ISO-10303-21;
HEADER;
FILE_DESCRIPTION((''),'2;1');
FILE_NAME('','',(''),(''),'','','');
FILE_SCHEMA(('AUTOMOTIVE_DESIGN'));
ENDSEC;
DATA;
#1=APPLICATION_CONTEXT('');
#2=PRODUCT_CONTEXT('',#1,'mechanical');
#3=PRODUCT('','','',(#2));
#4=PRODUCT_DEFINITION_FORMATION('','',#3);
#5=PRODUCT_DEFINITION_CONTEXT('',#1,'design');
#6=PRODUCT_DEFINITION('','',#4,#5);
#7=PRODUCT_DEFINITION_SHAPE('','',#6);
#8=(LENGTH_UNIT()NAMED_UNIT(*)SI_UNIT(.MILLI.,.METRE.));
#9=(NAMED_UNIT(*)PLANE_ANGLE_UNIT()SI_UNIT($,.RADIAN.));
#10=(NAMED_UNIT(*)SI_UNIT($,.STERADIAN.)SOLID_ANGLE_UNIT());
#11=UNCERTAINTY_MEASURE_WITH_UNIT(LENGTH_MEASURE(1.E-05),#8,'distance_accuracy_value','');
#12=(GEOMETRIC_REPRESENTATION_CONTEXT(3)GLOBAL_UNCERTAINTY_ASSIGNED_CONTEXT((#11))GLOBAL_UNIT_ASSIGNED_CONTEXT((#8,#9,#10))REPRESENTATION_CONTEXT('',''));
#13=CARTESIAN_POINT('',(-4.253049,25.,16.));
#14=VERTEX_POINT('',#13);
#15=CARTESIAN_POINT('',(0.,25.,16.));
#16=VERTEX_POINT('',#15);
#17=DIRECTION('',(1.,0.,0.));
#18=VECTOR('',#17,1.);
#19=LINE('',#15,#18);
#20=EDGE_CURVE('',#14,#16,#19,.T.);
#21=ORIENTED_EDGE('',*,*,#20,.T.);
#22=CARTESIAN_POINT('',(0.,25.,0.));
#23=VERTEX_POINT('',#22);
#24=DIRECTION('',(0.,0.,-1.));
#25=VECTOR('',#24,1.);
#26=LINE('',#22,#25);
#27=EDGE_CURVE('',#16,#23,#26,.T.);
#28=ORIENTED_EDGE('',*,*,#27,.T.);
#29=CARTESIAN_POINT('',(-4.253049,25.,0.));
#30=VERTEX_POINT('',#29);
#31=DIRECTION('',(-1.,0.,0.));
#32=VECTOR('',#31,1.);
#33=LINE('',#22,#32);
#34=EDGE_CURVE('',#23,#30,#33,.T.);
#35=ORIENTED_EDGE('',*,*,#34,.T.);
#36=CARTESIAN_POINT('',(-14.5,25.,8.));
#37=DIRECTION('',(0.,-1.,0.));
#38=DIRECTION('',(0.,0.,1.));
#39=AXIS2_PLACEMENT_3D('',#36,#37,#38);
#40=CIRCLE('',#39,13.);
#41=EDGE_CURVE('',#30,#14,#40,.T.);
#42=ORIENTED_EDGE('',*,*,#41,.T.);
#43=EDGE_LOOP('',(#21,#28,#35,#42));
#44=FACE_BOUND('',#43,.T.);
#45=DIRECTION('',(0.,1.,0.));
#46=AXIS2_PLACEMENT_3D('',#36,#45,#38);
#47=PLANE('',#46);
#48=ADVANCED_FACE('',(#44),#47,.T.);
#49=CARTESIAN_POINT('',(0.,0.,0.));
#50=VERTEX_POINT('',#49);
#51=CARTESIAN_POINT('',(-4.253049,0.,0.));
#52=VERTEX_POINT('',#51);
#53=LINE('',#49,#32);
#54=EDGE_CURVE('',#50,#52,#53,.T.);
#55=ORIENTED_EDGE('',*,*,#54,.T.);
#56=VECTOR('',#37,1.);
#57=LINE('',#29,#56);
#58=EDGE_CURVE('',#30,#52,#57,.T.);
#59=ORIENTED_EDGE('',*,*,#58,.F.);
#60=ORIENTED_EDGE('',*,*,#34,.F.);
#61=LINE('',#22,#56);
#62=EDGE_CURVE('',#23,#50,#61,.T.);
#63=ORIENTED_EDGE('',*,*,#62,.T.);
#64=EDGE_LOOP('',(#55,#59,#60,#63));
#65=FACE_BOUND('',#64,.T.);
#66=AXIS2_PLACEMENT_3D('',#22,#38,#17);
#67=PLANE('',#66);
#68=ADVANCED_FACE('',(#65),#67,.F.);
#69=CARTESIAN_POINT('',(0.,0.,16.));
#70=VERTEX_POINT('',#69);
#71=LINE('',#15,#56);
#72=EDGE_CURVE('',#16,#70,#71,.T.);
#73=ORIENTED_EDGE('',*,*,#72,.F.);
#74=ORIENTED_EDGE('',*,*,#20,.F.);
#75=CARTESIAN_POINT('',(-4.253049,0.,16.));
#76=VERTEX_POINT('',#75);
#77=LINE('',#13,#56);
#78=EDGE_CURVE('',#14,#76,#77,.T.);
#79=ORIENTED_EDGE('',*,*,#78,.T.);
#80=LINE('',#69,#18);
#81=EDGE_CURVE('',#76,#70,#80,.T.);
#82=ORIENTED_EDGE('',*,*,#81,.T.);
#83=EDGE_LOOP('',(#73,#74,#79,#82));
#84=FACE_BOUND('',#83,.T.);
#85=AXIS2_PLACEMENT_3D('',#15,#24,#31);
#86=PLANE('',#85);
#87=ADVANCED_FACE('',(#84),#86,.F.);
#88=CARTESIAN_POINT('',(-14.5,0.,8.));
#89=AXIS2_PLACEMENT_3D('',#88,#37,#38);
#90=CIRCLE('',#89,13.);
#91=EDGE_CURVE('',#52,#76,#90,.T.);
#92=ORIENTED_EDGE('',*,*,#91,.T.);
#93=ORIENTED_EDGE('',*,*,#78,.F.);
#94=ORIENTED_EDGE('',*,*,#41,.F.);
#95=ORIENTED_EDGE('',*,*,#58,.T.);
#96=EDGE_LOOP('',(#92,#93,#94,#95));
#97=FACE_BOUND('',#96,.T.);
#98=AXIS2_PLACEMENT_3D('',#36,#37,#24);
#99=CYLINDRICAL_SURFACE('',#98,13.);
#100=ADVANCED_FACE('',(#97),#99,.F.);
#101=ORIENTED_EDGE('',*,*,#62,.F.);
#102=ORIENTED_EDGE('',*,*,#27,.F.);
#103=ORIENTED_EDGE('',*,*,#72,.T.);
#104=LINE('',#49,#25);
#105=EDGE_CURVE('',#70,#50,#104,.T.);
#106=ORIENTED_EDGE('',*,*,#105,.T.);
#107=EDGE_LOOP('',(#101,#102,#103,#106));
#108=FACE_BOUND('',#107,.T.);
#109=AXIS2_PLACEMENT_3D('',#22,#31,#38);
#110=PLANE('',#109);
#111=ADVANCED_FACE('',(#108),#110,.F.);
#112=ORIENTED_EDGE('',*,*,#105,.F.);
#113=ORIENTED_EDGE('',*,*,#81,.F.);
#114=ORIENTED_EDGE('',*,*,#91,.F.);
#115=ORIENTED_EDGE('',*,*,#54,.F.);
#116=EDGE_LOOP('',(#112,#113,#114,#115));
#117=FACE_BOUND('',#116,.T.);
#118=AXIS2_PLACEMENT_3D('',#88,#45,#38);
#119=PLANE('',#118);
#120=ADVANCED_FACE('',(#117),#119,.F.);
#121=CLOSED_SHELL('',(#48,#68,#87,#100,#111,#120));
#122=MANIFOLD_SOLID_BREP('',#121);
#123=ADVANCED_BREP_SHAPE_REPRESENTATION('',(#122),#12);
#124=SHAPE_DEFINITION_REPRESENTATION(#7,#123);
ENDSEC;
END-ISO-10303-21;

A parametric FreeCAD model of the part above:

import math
import FreeCAD as App
import Part
import Sketcher
from FreeCAD import Vector
Q = App.Units.Quantity

doc = App.newDocument("Part")
body = doc.addObject("PartDesign::Body", "Body")

# Sketch on XZ plane
sketch1 = doc.addObject("Sketcher::SketchObject", "Sketch")
body.addObject(sketch1)
sketch1.AttachmentSupport = (doc.XZ_Plane, [""])
sketch1.MapMode = "FlatFace"
sketch1.addGeometry(Part.LineSegment(Vector(0, 16, 0), Vector(0, 0, 0)), False)
sketch1.addGeometry(Part.LineSegment(Vector(0, 0, 0), Vector(-4.3, 0, 0)), False)
sketch1.addGeometry(Part.ArcOfCircle(Part.Circle(Vector(-14.5, 8, 0), Vector(0, 0, 1), 13), math.radians(-38), math.radians(38)), False)
sketch1.addGeometry(Part.LineSegment(Vector(-4.3, 16, 0), Vector(0, 16, 0)), False)
sketch1.addConstraint(Sketcher.Constraint("Coincident", 0, 2, 1, 1))
sketch1.addConstraint(Sketcher.Constraint("Coincident", 1, 2, 2, 1))
sketch1.addConstraint(Sketcher.Constraint("Coincident", 2, 2, 3, 1))
sketch1.addConstraint(Sketcher.Constraint("Coincident", 3, 2, 0, 1))
sketch1.addConstraint(Sketcher.Constraint("Vertical", 0))
sketch1.addConstraint(Sketcher.Constraint("Horizontal", 1))
sketch1.addConstraint(Sketcher.Constraint("Horizontal", 3))
sketch1.addConstraint(Sketcher.Constraint("Coincident", 0, 2, -1, 1))
sketch1.addConstraint(Sketcher.Constraint("Vertical", 1, 2, 2, 2))
sketch1.addConstraint(Sketcher.Constraint("Radius", 2, Q("13 mm")))
sketch1.addConstraint(Sketcher.Constraint("DistanceY", 0, 2, 0, 1, Q("16 mm")))
sketch1.addConstraint(Sketcher.Constraint("DistanceX", 2, 3, -1, 1, Q("14.5 mm")))
pad1 = doc.addObject("PartDesign::Pad", "Pad")
body.addObject(pad1)
pad1.Profile = sketch1
pad1.Length = 25
pad1.Reversed = True

doc.recompute()
